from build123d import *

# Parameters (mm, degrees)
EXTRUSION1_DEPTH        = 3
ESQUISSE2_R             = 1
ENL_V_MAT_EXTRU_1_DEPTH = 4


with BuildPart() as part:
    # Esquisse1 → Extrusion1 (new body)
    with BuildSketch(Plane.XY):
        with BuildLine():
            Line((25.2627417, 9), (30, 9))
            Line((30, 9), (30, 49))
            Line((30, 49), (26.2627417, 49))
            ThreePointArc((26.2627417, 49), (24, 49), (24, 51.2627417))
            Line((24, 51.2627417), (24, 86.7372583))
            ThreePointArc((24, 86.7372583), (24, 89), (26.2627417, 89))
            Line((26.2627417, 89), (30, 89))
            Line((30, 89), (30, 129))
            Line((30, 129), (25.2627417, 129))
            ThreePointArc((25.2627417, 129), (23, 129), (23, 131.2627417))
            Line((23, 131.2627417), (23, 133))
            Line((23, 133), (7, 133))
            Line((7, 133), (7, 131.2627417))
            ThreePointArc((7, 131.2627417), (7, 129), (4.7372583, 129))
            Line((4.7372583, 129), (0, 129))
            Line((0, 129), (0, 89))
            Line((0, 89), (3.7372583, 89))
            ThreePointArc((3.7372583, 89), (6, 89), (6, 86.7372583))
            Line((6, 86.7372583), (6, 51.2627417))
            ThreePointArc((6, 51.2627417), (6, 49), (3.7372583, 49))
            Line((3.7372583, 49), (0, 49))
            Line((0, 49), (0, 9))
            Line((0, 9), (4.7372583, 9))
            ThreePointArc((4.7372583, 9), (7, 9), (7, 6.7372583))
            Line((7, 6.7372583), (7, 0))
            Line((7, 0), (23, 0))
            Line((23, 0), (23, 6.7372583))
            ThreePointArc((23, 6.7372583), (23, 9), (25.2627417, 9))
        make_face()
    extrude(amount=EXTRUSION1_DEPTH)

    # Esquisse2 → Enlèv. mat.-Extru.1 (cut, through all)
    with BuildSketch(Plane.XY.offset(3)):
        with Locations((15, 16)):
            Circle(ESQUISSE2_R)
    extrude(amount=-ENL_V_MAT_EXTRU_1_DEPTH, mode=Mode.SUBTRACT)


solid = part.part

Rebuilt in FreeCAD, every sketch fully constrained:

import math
import FreeCAD as App
import Part
import Sketcher

doc = App.newDocument("Part")
body = doc.addObject("PartDesign::Body", "Body")

sketch1 = body.newObject("Sketcher::SketchObject", "Sketch")
sketch1.AttachmentSupport = (doc.getObject("XY_Plane"), [""])
sketch1.MapMode = "FlatFace"
sketch1.addGeometry(Part.LineSegment(App.Vector(25.3, 9, 0), App.Vector(30, 9, 0)), False)
sketch1.addGeometry(Part.LineSegment(App.Vector(30, 9, 0), App.Vector(30, 49, 0)), False)
sketch1.addGeometry(Part.LineSegment(App.Vector(30, 49, 0), App.Vector(26.3, 49, 0)), False)
sketch1.addGeometry(Part.ArcOfCircle(Part.Circle(App.Vector(25.1, 50.1, 0), App.Vector(0, 0, 1), 1.6), math.radians(135), math.radians(315)), False)
sketch1.addGeometry(Part.LineSegment(App.Vector(24, 51.3, 0), App.Vector(24, 86.7, 0)), False)
sketch1.addGeometry(Part.ArcOfCircle(Part.Circle(App.Vector(25.1, 87.9, 0), App.Vector(0, 0, 1), 1.6), math.radians(45), math.radians(225)), False)
sketch1.addGeometry(Part.LineSegment(App.Vector(26.3, 89, 0), App.Vector(30, 89, 0)), False)
sketch1.addGeometry(Part.LineSegment(App.Vector(30, 89, 0), App.Vector(30, 129, 0)), False)
sketch1.addGeometry(Part.LineSegment(App.Vector(30, 129, 0), App.Vector(25.3, 129, 0)), False)
sketch1.addGeometry(Part.ArcOfCircle(Part.Circle(App.Vector(24.1, 130.1, 0), App.Vector(0, 0, 1), 1.6), math.radians(135), math.radians(315)), False)
sketch1.addGeometry(Part.LineSegment(App.Vector(23, 131.3, 0), App.Vector(23, 133, 0)), False)
sketch1.addGeometry(Part.LineSegment(App.Vector(23, 133, 0), App.Vector(7, 133, 0)), False)
sketch1.addGeometry(Part.LineSegment(App.Vector(7, 133, 0), App.Vector(7, 131.3, 0)), False)
sketch1.addGeometry(Part.ArcOfCircle(Part.Circle(App.Vector(5.9, 130.1, 0), App.Vector(0, 0, 1), 1.6), math.radians(-135), math.radians(45)), False)
sketch1.addGeometry(Part.LineSegment(App.Vector(4.7, 129, 0), App.Vector(0, 129, 0)), False)
sketch1.addGeometry(Part.LineSegment(App.Vector(0, 129, 0), App.Vector(0, 89, 0)), False)
sketch1.addGeometry(Part.LineSegment(App.Vector(0, 89, 0), App.Vector(3.7, 89, 0)), False)
sketch1.addGeometry(Part.ArcOfCircle(Part.Circle(App.Vector(4.9, 87.9, 0), App.Vector(0, 0, 1), 1.6), math.radians(-45), math.radians(135)), False)
sketch1.addGeometry(Part.LineSegment(App.Vector(6, 86.7, 0), App.Vector(6, 51.3, 0)), False)
sketch1.addGeometry(Part.ArcOfCircle(Part.Circle(App.Vector(4.9, 50.1, 0), App.Vector(0, 0, 1), 1.6), math.radians(-135), math.radians(45)), False)
sketch1.addGeometry(Part.LineSegment(App.Vector(3.7, 49, 0), App.Vector(0, 49, 0)), False)
sketch1.addGeometry(Part.LineSegment(App.Vector(0, 49, 0), App.Vector(0, 9, 0)), False)
sketch1.addGeometry(Part.LineSegment(App.Vector(0, 9, 0), App.Vector(4.7, 9, 0)), False)
sketch1.addGeometry(Part.ArcOfCircle(Part.Circle(App.Vector(5.9, 7.9, 0), App.Vector(0, 0, 1), 1.6), math.radians(-45), math.radians(135)), False)
sketch1.addGeometry(Part.LineSegment(App.Vector(7, 6.7, 0), App.Vector(7, 0, 0)), False)
sketch1.addGeometry(Part.LineSegment(App.Vector(7, 0, 0), App.Vector(23, 0, 0)), False)
sketch1.addGeometry(Part.LineSegment(App.Vector(23, 0, 0), App.Vector(23, 6.7, 0)), False)
sketch1.addGeometry(Part.ArcOfCircle(Part.Circle(App.Vector(24.1, 7.9, 0), App.Vector(0, 0, 1), 1.6), math.radians(45), math.radians(225)), False)
sketch1.addConstraint(Sketcher.Constraint("Coincident", 0, 2, 1, 1))
sketch1.addConstraint(Sketcher.Constraint("Coincident", 1, 2, 2, 1))
sketch1.addConstraint(Sketcher.Constraint("Coincident", 2, 2, 3, 2))
sketch1.addConstraint(Sketcher.Constraint("Coincident", 3, 1, 4, 1))
sketch1.addConstraint(Sketcher.Constraint("Coincident", 4, 2, 5, 2))
sketch1.addConstraint(Sketcher.Constraint("Coincident", 5, 1, 6, 1))
sketch1.addConstraint(Sketcher.Constraint("Coincident", 6, 2, 7, 1))
sketch1.addConstraint(Sketcher.Constraint("Coincident", 7, 2, 8, 1))
sketch1.addConstraint(Sketcher.Constraint("Coincident", 8, 2, 9, 2))
sketch1.addConstraint(Sketcher.Constraint("Coincident", 9, 1, 10, 1))
sketch1.addConstraint(Sketcher.Constraint("Coincident", 10, 2, 11, 1))
sketch1.addConstraint(Sketcher.Constraint("Coincident", 11, 2, 12, 1))
sketch1.addConstraint(Sketcher.Constraint("Coincident", 12, 2, 13, 2))
sketch1.addConstraint(Sketcher.Constraint("Coincident", 13, 1, 14, 1))
sketch1.addConstraint(Sketcher.Constraint("Coincident", 14, 2, 15, 1))
sketch1.addConstraint(Sketcher.Constraint("Coincident", 15, 2, 16, 1))
sketch1.addConstraint(Sketcher.Constraint("Coincident", 16, 2, 17, 2))
sketch1.addConstraint(Sketcher.Constraint("Coincident", 17, 1, 18, 1))
sketch1.addConstraint(Sketcher.Constraint("Coincident", 18, 2, 19, 2))
sketch1.addConstraint(Sketcher.Constraint("Coincident", 19, 1, 20, 1))
sketch1.addConstraint(Sketcher.Constraint("Coincident", 20, 2, 21, 1))
sketch1.addConstraint(Sketcher.Constraint("Coincident", 21, 2, 22, 1))
sketch1.addConstraint(Sketcher.Constraint("Coincident", 22, 2, 23, 2))
sketch1.addConstraint(Sketcher.Constraint("Coincident", 23, 1, 24, 1))
sketch1.addConstraint(Sketcher.Constraint("Coincident", 24, 2, 25, 1))
sketch1.addConstraint(Sketcher.Constraint("Coincident", 25, 2, 26, 1))
sketch1.addConstraint(Sketcher.Constraint("Coincident", 26, 2, 27, 2))
sketch1.addConstraint(Sketcher.Constraint("Coincident", 27, 1, 0, 1))
sketch1.addConstraint(Sketcher.Constraint("Horizontal", 0))
sketch1.addConstraint(Sketcher.Constraint("Vertical", 1))
sketch1.addConstraint(Sketcher.Constraint("Horizontal", 2))
sketch1.addConstraint(Sketcher.Constraint("Vertical", 4))
sketch1.addConstraint(Sketcher.Constraint("Horizontal", 6))
sketch1.addConstraint(Sketcher.Constraint("Vertical", 7))
sketch1.addConstraint(Sketcher.Constraint("Horizontal", 8))
sketch1.addConstraint(Sketcher.Constraint("Vertical", 10))
sketch1.addConstraint(Sketcher.Constraint("Horizontal", 11))
sketch1.addConstraint(Sketcher.Constraint("Vertical", 12))
sketch1.addConstraint(Sketcher.Constraint("Horizontal", 14))
sketch1.addConstraint(Sketcher.Constraint("Vertical", 15))
sketch1.addConstraint(Sketcher.Constraint("Horizontal", 16))
sketch1.addConstraint(Sketcher.Constraint("Vertical", 18))
sketch1.addConstraint(Sketcher.Constraint("Horizontal", 20))
sketch1.addConstraint(Sketcher.Constraint("Vertical", 21))
sketch1.addConstraint(Sketcher.Constraint("Horizontal", 22))
sketch1.addConstraint(Sketcher.Constraint("Vertical", 24))
sketch1.addConstraint(Sketcher.Constraint("Horizontal", 25))
sketch1.addConstraint(Sketcher.Constraint("Vertical", 26))
sketch1.addConstraint(Sketcher.Constraint("Equal", 3, 5))
sketch1.addConstraint(Sketcher.Constraint("Equal", 5, 9))
sketch1.addConstraint(Sketcher.Constraint("Equal", 9, 13))
sketch1.addConstraint(Sketcher.Constraint("Equal", 13, 17))
sketch1.addConstraint(Sketcher.Constraint("Equal", 17, 19))
sketch1.addConstraint(Sketcher.Constraint("Equal", 19, 23))
sketch1.addConstraint(Sketcher.Constraint("Equal", 23, 27))
sketch1.addConstraint(Sketcher.Constraint("PointOnObject", 14, 2, -2))
sketch1.addConstraint(Sketcher.Constraint("PointOnObject", 20, 2, -2))
sketch1.addConstraint(Sketcher.Constraint("PointOnObject", 24, 2, -1))
sketch1.addConstraint(Sketcher.Constraint("Horizontal", 9, 3, 13, 3))
sketch1.addConstraint(Sketcher.Constraint("Horizontal", 5, 3, 17, 3))
sketch1.addConstraint(Sketcher.Constraint("Horizontal", 3, 3, 19, 3))
sketch1.addConstraint(Sketcher.Constraint("Horizontal", 23, 3, 27, 3))
sketch1.addConstraint(Sketcher.Constraint("Horizontal", 9, 1, 12, 2))
sketch1.addConstraint(Sketcher.Constraint("Horizontal", 8, 2, 13, 1))
sketch1.addConstraint(Sketcher.Constraint("Horizontal", 6, 2, 15, 2))
sketch1.addConstraint(Sketcher.Constraint("Horizontal", 4, 2, 17, 1))
sketch1.addConstraint(Sketcher.Constraint("Horizontal", 3, 1, 18, 2))
sketch1.addConstraint(Sketcher.Constraint("Horizontal", 2, 2, 19, 1))
sketch1.addConstraint(Sketcher.Constraint("Horizontal", 0, 2, 21, 2))
sketch1.addConstraint(Sketcher.Constraint("Horizontal", 23, 1, 26, 2))
sketch1.addConstraint(Sketcher.Constraint("Vertical", 3, 3, 5, 3))
sketch1.addConstraint(Sketcher.Constraint("Vertical", 13, 3, 23, 3))
sketch1.addConstraint(Sketcher.Constraint("Vertical", 9, 3, 27, 3))
sketch1.addConstraint(Sketcher.Constraint("Vertical", 2, 2, 5, 1))
sketch1.addConstraint(Sketcher.Constraint("Vertical", 1, 2, 6, 2))
sketch1.addConstraint(Sketcher.Constraint("Vertical", 13, 1, 22, 2))
sketch1.addConstraint(Sketcher.Constraint("Vertical", 12, 2, 23, 1))
sketch1.addConstraint(Sketcher.Constraint("Equal", 8, 14))
sketch1.addConstraint(Sketcher.Constraint("Equal", 6, 16))
sketch1.addConstraint(Sketcher.Constraint("Equal", 1, 7))
sketch1.addConstraint(Sketcher.Constraint("Radius", 3, 1.6))
sketch1.addConstraint(Sketcher.Constraint("DistanceX", 11, 2, 11, 1, 16.0))
sketch1.addConstraint(Sketcher.Constraint("DistanceY", 1, 1, 1, 2, 40.0))
sketch1.addConstraint(Sketcher.Constraint("DistanceX", -1, 1, 0, 2, 30.0))
sketch1.addConstraint(Sketcher.Constraint("DistanceY", -1, 1, 0, 2, 9.0))
sketch1.addConstraint(Sketcher.Constraint("DistanceX", -1, 1, 3, 1, 24.0))
sketch1.addConstraint(Sketcher.Constraint("DistanceY", -1, 1, 5, 1, 89.0))
sketch1.addConstraint(Sketcher.Constraint("DistanceY", -1, 1, 10, 2, 133.0))
sketch1.addConstraint(Sketcher.Constraint("DistanceX", 9, 3, 5, 3, 1.0))
sketch1.addConstraint(Sketcher.Constraint("DistanceY", 3, 3, 9, 3, 80.0))
sketch1.addConstraint(Sketcher.Constraint("DistanceX", 0, 1, 0, 2, 4.737258))
sketch1.addConstraint(Sketcher.Constraint("DistanceX", -1, 1, 3, 3, 25.131371))
pad1 = body.newObject("PartDesign::Pad", "Pad")
pad1.Profile = sketch1
pad1.Length = 3

sketch2 = body.newObject("Sketcher::SketchObject", "Sketch001")
sketch2.AttachmentSupport = (doc.getObject("XY_Plane"), [""])
sketch2.MapMode = "FlatFace"
sketch2.AttachmentOffset = App.Placement(App.Vector(0, 0, 3), App.Rotation())
sketch2.addGeometry(Part.Circle(App.Vector(15, 16, 0), App.Vector(0, 0, 1), 1), False)
sketch2.addConstraint(Sketcher.Constraint("Diameter", 0, 2.0))
sketch2.addConstraint(Sketcher.Constraint("DistanceX", -1, 1, 0, 3, 15.0))
sketch2.addConstraint(Sketcher.Constraint("DistanceY", -1, 1, 0, 3, 16.0))
pocket1 = body.newObject("PartDesign::Pocket", "Pocket")
pocket1.Profile = sketch2
pocket1.Type = "ThroughAll"

doc.recompute()
